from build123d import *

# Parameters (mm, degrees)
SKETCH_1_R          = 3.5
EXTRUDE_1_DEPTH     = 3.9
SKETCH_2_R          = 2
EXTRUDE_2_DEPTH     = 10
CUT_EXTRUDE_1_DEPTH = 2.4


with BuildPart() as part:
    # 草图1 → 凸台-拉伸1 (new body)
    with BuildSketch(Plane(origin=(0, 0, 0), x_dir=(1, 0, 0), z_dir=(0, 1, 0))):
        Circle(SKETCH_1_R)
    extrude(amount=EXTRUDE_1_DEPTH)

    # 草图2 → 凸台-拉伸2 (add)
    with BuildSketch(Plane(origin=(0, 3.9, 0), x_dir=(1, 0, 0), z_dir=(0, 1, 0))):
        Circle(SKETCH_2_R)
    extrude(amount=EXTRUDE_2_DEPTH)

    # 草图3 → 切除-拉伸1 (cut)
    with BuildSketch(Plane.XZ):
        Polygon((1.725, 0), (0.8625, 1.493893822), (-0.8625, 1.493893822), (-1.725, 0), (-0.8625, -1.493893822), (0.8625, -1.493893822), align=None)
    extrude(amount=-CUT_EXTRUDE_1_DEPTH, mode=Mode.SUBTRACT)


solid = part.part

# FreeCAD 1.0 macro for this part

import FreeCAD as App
import Part
import Sketcher

V = App.Vector
Q = App.Units.Quantity


def add_polygon(sketch, points):
    """Adds a closed chain of lines whose ends are joined by coincident constraints."""
    first, n = sketch.GeometryCount, len(points)
    for a, b in zip(points, points[1:] + points[:1]):
        sketch.addGeometry(Part.LineSegment(App.Vector(*a, 0), App.Vector(*b, 0)), False)
    for i in range(n):
        sketch.addConstraint(Sketcher.Constraint("Coincident", first + i, 2, first + (i + 1) % n, 1))

doc = App.newDocument("Part")
body = doc.addObject("PartDesign::Body", "Body")

# Sketch on XZ plane
sketch1 = body.newObject("Sketcher::SketchObject", "Sketch")
sketch1.AttachmentSupport = (doc.getObject("XZ_Plane"), [""])
sketch1.MapMode = "FlatFace"
sketch1.addGeometry(Part.Circle(V(0, 0, 0), V(0, 0, 1), 3.5), False)
sketch1.addConstraint(Sketcher.Constraint("Coincident", 0, 3, -1, 1))
sketch1.addConstraint(Sketcher.Constraint("Diameter", 0, Q("7 mm")))
pad1 = body.newObject("PartDesign::Pad", "Pad")
pad1.Profile = sketch1
pad1.Length = 3.9
pad1.Reversed = True

# Sketch on XZ plane
sketch2 = body.newObject("Sketcher::SketchObject", "Sketch001")
sketch2.AttachmentSupport = (doc.getObject("XZ_Plane"), [""])
sketch2.MapMode = "FlatFace"
sketch2.AttachmentOffset = App.Placement(V(0, 0, -3.9), App.Rotation())
sketch2.addGeometry(Part.Circle(V(0, 0, 0), V(0, 0, 1), 2), False)
sketch2.addConstraint(Sketcher.Constraint("Coincident", 0, 3, -1, 1))
sketch2.addConstraint(Sketcher.Constraint("Diameter", 0, Q("4 mm")))
pad2 = body.newObject("PartDesign::Pad", "Pad001")
pad2.Profile = sketch2
pad2.Length = 10
pad2.Reversed = True

# Sketch on XZ plane
sketch3 = body.newObject("Sketcher::SketchObject", "Sketch002")
sketch3.AttachmentSupport = (doc.getObject("XZ_Plane"), [""])
sketch3.MapMode = "FlatFace"
add_polygon(sketch3, [(1.7, 0), (0.9, 1.5), (-0.9, 1.5), (-1.7, 0), (-0.9, -1.5), (0.9, -1.5)])  # lines 0-5
sketch3.addConstraint(Sketcher.Constraint("Horizontal", 1))
sketch3.addConstraint(Sketcher.Constraint("Horizontal", 4))
sketch3.addConstraint(Sketcher.Constraint("Symmetric", 0, 2, 3, 2, -1, 1))
sketch3.addConstraint(Sketcher.Constraint("Symmetric", 2, 2, 5, 2, -1, 1))
sketch3.addConstraint(Sketcher.Constraint("PointOnObject", 2, 2, -1))
sketch3.addConstraint(Sketcher.Constraint("Parallel", 2, 5))
sketch3.addConstraint(Sketcher.Constraint("Vertical", 1, 2, 3, 2))
sketch3.addConstraint(Sketcher.Constraint("Angle", 0, Q("120 deg")))
sketch3.addConstraint(Sketcher.Constraint("DistanceX", 1, 2, 1, 1, Q("1.725 mm")))
sketch3.addConstraint(Sketcher.Constraint("DistanceX", 2, 2, 5, 2, Q("3.45 mm")))
pocket1 = body.newObject("PartDesign::Pocket", "Pocket")
pocket1.Profile = sketch3
pocket1.Length = 2.4

doc.recompute()
